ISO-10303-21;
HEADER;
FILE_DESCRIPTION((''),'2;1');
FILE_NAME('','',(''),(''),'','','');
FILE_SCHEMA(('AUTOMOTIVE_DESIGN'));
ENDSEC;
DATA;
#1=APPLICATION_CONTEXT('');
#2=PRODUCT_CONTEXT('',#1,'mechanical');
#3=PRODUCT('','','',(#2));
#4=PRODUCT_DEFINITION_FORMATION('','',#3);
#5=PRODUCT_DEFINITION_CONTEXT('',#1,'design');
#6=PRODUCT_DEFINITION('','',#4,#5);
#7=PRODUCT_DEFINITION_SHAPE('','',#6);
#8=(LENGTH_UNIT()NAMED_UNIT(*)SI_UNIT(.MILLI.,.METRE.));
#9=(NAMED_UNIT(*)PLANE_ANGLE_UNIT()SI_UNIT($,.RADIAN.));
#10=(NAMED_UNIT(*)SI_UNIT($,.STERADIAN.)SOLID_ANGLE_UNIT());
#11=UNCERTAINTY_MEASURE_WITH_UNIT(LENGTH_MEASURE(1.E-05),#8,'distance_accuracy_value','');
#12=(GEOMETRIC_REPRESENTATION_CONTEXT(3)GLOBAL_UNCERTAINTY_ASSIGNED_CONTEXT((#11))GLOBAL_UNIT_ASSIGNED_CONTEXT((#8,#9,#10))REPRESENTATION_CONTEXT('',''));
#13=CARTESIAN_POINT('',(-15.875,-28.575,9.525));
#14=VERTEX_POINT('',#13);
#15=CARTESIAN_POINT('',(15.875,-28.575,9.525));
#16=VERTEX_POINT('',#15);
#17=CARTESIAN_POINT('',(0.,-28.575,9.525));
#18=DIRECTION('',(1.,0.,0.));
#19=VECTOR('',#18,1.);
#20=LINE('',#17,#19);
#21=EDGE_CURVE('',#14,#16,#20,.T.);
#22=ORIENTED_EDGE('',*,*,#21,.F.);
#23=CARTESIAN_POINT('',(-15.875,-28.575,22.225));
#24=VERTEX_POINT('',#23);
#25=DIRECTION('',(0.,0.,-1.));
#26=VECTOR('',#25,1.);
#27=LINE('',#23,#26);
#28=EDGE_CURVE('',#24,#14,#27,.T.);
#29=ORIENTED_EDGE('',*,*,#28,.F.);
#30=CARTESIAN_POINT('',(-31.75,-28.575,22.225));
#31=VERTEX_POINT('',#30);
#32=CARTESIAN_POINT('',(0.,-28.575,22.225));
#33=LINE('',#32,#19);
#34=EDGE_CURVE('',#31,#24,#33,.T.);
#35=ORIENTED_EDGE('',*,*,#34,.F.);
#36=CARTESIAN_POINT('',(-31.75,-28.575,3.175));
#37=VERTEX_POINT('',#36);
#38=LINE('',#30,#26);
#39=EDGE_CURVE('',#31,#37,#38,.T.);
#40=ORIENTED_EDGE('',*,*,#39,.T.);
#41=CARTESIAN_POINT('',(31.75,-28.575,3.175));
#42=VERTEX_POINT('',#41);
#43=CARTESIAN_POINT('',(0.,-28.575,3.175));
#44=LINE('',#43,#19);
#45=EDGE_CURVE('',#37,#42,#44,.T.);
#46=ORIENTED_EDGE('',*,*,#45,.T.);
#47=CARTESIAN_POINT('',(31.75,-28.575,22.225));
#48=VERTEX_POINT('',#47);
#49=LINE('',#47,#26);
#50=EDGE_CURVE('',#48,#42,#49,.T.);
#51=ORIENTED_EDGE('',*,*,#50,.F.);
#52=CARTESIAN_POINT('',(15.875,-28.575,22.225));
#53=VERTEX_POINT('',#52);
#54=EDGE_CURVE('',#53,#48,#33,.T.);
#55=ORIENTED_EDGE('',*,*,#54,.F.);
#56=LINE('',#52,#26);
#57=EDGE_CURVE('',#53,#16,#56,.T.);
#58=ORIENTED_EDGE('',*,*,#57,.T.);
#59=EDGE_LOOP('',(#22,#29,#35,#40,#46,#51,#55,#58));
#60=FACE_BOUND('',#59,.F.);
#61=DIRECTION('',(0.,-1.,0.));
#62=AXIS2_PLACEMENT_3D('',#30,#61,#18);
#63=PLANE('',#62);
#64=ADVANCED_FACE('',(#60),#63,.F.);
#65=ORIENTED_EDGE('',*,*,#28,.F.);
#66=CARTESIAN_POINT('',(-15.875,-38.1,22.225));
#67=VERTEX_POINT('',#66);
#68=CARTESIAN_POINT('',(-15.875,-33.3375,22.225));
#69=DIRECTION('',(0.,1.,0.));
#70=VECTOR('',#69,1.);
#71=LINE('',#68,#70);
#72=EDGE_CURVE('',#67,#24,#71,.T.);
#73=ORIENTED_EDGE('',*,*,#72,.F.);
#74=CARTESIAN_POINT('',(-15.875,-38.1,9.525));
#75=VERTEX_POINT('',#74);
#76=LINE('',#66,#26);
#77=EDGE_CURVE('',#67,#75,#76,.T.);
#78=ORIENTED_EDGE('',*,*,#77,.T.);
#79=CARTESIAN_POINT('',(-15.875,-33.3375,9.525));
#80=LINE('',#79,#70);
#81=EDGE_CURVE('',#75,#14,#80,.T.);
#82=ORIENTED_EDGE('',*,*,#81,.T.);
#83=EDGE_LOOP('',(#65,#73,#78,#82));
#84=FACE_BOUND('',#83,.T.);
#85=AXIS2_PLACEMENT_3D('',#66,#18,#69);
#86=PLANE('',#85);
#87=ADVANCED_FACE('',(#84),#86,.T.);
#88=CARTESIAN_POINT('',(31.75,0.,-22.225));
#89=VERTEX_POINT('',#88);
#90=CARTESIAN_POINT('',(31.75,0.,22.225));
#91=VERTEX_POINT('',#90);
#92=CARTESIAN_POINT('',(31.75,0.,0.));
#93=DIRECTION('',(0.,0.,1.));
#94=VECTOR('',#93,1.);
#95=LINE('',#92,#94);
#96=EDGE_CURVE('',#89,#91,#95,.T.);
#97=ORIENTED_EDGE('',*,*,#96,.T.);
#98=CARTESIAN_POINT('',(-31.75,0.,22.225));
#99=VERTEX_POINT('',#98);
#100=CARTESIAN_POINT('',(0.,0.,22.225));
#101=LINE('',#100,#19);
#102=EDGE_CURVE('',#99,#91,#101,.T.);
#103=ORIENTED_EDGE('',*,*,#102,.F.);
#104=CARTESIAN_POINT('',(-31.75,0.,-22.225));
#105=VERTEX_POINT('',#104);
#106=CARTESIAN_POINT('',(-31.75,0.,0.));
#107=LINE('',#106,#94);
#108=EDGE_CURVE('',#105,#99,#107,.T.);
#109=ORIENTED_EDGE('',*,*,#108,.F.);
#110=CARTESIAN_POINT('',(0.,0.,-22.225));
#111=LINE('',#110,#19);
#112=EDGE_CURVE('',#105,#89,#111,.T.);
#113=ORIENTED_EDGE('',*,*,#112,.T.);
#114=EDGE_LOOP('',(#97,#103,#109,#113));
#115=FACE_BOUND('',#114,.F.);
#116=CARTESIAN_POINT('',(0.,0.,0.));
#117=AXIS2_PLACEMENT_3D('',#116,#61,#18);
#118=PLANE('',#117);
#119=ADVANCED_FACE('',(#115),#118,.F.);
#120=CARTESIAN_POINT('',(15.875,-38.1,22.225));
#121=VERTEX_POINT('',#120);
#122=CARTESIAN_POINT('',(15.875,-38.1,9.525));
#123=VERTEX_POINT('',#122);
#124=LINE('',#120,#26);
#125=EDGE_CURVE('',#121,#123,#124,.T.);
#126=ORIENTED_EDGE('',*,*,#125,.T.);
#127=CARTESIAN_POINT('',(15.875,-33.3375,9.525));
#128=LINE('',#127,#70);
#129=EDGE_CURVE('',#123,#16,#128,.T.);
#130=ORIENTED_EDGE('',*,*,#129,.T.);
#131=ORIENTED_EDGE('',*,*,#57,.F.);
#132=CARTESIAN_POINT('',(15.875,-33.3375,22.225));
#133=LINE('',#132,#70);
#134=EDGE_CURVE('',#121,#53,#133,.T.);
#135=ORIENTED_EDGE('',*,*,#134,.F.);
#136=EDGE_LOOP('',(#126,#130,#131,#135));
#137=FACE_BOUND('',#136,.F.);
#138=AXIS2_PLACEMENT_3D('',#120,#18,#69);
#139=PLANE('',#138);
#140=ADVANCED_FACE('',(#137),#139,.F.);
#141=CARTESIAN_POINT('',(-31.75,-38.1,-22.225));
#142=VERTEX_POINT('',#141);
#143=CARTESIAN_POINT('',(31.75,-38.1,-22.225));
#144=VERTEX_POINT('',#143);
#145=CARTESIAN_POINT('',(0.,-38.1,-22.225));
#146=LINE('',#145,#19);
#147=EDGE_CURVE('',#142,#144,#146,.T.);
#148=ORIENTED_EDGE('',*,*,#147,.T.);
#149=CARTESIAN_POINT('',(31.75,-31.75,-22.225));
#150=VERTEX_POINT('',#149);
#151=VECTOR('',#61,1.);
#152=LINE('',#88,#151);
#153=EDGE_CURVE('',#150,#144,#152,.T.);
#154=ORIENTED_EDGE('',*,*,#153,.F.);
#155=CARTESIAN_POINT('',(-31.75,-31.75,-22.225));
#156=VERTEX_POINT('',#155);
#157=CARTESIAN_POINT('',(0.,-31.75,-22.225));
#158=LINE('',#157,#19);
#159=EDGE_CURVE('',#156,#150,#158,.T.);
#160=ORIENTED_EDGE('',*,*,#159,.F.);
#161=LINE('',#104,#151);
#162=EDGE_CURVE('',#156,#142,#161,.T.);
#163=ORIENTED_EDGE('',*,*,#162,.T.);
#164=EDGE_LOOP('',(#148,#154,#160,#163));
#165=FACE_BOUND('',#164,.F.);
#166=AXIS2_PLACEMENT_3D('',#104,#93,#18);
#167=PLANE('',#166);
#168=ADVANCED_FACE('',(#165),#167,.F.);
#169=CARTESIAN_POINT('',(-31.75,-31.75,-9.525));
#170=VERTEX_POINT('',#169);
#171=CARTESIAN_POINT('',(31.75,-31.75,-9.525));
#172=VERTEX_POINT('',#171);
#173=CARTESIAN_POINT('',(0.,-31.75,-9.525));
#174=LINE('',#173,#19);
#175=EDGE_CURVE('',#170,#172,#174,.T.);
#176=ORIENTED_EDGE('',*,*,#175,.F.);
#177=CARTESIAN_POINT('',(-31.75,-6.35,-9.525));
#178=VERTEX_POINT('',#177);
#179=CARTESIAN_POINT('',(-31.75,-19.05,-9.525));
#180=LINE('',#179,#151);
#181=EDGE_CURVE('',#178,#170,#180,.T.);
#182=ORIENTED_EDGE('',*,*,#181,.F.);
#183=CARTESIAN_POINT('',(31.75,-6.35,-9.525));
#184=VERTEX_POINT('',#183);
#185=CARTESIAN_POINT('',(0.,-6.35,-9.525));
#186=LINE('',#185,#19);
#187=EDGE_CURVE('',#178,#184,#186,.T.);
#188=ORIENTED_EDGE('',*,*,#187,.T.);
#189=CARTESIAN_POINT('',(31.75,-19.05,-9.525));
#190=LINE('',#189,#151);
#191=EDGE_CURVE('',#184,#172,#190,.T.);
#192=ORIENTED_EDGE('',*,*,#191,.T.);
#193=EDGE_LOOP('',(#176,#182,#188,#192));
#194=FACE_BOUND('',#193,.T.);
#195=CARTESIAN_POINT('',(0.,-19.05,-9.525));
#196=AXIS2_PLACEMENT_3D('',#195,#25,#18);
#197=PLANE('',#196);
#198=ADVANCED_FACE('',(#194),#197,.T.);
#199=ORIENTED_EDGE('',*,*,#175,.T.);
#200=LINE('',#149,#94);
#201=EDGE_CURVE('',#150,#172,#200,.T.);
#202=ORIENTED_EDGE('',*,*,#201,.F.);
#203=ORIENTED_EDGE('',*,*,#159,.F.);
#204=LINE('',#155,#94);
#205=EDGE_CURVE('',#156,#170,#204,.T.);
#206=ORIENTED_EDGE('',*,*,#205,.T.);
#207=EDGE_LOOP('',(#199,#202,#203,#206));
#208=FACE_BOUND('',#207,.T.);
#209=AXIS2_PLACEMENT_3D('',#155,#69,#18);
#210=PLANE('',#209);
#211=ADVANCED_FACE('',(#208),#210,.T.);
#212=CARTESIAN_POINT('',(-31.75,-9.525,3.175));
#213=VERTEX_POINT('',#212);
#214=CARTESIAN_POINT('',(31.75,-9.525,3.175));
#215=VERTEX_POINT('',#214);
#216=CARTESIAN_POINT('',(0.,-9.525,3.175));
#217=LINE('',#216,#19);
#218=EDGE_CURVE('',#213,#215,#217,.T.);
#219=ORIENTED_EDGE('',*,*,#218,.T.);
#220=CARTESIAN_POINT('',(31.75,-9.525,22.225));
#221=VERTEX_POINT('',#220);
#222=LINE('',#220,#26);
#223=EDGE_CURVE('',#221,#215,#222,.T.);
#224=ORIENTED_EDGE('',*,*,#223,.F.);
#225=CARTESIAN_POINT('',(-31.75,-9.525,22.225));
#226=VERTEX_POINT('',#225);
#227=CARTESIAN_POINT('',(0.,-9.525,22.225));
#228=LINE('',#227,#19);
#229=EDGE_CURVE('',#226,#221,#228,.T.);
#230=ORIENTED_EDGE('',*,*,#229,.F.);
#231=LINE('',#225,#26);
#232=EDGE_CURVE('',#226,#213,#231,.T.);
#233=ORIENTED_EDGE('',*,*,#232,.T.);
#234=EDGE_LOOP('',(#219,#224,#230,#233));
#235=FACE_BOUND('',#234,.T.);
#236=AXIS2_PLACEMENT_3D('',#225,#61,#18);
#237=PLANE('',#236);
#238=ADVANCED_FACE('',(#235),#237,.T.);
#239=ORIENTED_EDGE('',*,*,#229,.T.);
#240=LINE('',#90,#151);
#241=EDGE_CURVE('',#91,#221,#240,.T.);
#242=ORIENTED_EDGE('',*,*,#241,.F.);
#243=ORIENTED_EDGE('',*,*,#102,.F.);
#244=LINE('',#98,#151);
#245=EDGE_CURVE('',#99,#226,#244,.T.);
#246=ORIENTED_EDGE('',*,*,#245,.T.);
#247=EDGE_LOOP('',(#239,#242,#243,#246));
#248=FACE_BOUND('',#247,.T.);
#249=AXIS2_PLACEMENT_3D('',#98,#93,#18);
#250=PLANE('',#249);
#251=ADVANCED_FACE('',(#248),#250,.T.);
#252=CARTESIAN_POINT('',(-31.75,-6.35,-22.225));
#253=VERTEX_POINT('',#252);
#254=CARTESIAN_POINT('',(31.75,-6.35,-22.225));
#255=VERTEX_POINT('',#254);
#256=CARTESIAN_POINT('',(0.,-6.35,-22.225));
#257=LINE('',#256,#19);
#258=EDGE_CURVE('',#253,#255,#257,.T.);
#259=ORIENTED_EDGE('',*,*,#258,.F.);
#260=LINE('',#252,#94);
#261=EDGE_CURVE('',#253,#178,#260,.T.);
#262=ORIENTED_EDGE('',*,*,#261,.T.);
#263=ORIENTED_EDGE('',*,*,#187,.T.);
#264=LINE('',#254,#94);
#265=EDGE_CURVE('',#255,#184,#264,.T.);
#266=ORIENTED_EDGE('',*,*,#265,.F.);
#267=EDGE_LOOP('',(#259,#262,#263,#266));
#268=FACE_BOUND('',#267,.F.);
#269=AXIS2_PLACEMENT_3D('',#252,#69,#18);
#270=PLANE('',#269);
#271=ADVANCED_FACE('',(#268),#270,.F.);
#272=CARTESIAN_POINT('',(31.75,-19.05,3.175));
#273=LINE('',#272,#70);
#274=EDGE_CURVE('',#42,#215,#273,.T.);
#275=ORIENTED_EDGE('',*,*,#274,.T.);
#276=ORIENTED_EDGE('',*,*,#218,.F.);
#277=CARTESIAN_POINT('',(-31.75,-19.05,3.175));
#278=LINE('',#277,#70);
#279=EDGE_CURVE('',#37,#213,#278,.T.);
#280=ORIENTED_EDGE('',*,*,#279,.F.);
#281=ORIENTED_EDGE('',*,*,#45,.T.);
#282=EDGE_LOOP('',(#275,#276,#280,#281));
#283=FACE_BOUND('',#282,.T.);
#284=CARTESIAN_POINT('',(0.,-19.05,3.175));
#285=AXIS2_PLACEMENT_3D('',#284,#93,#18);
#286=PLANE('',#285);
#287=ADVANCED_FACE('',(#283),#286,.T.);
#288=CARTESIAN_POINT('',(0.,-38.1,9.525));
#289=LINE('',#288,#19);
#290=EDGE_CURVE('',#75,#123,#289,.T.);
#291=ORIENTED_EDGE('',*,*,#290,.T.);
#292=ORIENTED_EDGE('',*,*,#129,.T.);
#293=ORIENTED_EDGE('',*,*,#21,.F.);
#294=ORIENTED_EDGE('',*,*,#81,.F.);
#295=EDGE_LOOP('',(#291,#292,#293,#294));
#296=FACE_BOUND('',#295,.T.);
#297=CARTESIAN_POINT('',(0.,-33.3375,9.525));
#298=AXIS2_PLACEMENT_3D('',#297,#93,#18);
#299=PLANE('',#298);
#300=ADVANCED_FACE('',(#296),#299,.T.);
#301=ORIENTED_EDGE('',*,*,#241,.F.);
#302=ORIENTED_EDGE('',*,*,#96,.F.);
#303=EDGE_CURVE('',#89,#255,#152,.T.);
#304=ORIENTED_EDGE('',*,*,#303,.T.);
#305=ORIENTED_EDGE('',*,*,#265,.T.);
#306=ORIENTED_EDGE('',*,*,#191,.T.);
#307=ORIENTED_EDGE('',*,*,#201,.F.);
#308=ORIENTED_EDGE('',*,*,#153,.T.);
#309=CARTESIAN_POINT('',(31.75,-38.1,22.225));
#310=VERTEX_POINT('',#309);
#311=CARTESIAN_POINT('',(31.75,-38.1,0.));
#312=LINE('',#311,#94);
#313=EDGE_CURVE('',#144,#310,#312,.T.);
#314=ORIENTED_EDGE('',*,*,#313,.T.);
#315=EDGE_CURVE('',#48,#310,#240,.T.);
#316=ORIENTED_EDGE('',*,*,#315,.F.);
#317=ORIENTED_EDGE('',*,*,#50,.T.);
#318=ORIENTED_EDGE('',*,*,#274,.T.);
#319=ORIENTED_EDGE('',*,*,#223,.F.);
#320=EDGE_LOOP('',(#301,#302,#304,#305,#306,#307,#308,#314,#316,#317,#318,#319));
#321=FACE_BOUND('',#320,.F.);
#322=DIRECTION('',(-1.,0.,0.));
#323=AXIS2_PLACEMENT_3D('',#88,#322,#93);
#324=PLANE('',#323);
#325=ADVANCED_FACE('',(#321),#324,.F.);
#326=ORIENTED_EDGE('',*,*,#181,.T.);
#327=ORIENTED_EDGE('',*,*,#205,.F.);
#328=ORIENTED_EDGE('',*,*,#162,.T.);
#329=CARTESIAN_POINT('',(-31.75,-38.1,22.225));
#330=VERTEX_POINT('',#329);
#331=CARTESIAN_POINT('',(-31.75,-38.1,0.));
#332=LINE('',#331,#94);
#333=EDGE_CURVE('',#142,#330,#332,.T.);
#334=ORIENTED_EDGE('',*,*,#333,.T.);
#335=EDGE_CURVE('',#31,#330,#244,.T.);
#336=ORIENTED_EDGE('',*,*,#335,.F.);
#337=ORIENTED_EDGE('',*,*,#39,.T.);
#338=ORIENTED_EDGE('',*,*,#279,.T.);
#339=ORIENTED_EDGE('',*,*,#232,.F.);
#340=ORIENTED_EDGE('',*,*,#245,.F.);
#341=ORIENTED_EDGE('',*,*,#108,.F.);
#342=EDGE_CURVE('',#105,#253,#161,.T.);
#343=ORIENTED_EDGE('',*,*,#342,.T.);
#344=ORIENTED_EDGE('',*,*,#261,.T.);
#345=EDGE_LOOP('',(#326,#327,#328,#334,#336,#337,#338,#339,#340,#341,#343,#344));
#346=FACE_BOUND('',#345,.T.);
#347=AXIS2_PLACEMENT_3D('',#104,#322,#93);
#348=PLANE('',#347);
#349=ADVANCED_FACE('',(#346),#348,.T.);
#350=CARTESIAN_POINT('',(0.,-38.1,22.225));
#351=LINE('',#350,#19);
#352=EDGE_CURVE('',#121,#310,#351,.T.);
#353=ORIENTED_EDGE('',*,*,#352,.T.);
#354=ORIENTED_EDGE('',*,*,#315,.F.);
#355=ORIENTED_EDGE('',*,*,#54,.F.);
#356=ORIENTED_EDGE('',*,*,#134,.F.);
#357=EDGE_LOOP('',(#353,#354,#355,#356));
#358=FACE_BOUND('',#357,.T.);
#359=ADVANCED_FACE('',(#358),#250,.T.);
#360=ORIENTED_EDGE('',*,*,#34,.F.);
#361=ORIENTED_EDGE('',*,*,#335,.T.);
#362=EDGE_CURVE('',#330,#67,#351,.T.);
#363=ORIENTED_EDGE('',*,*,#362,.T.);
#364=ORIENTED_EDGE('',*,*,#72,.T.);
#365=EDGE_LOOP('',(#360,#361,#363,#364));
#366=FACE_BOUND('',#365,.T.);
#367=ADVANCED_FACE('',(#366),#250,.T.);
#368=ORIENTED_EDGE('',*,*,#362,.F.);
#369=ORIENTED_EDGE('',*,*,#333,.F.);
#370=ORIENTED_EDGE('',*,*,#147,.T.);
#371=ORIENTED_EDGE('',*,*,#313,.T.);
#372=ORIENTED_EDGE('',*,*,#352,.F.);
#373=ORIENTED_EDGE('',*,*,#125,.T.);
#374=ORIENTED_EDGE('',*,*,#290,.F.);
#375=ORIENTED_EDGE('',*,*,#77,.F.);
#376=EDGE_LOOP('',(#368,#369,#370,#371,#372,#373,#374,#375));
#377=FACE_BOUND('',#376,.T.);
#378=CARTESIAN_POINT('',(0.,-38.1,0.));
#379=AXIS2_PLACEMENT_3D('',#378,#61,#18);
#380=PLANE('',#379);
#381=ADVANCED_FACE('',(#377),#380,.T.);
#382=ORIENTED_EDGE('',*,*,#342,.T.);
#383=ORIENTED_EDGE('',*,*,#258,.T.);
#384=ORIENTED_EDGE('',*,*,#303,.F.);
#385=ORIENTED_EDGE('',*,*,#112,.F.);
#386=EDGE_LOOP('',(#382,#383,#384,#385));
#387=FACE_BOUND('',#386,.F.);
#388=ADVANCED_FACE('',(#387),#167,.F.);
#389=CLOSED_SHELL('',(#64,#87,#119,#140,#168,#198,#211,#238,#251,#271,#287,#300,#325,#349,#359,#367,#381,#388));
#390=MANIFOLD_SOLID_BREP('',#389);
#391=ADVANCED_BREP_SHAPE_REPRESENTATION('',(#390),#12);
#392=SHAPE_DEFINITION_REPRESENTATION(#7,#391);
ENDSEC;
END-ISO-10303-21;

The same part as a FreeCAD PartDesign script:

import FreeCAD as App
import Part
import Sketcher

V = App.Vector
Q = App.Units.Quantity


def add_polygon(sketch, points):
    """Adds a closed chain of lines whose ends are joined by coincident constraints."""
    first, n = sketch.GeometryCount, len(points)
    for a, b in zip(points, points[1:] + points[:1]):
        sketch.addGeometry(Part.LineSegment(App.Vector(*a, 0), App.Vector(*b, 0)), False)
    for i in range(n):
        sketch.addConstraint(Sketcher.Constraint("Coincident", first + i, 2, first + (i + 1) % n, 1))

doc = App.newDocument("Part")
body = doc.addObject("PartDesign::Body", "Body")

# Sketch on XZ plane
sketch1 = body.newObject("Sketcher::SketchObject", "Sketch")
sketch1.AttachmentSupport = (doc.getObject("XZ_Plane"), [""])
sketch1.MapMode = "FlatFace"
add_polygon(sketch1, [(-31.75, 22.225), (-31.75, -22.225), (31.75, -22.225), (31.75, 22.225)])  # lines 0-3
sketch1.addConstraint(Sketcher.Constraint("Vertical", 0))
sketch1.addConstraint(Sketcher.Constraint("Horizontal", 1))
sketch1.addConstraint(Sketcher.Constraint("Vertical", 2))
sketch1.addConstraint(Sketcher.Constraint("Horizontal", 3))
sketch1.addConstraint(Sketcher.Constraint("Symmetric", 0, 2, 2, 2, -1, 1))
sketch1.addConstraint(Sketcher.Constraint("DistanceX", 1, 1, 1, 2, Q("2.5 in")))
sketch1.addConstraint(Sketcher.Constraint("DistanceY", 0, 2, 0, 1, Q("1.75 in")))
pad1 = body.newObject("PartDesign::Pad", "Pad")
pad1.Profile = sketch1
pad1.Length = Q("1.5 in")

# Sketch on XY plane
sketch2 = body.newObject("Sketcher::SketchObject", "Sketch001")
sketch2.AttachmentSupport = (doc.getObject("XY_Plane"), [""])
sketch2.MapMode = "FlatFace"
sketch2.AttachmentOffset = App.Placement(V(0, 0, 0.875 * 25.4), App.Rotation())
add_polygon(sketch2, [(-31.75, -9.525), (-31.75, -28.575), (31.75, -28.575), (31.75, -9.525)])  # lines 0-3
sketch2.addConstraint(Sketcher.Constraint("Vertical", 0))
sketch2.addConstraint(Sketcher.Constraint("Horizontal", 1))
sketch2.addConstraint(Sketcher.Constraint("Vertical", 2))
sketch2.addConstraint(Sketcher.Constraint("Horizontal", 3))
sketch2.addConstraint(Sketcher.Constraint("DistanceX", 1, 1, 1, 2, Q("2.5 in")))
sketch2.addConstraint(Sketcher.Constraint("DistanceY", 0, 2, 0, 1, Q("0.75 in")))
sketch2.addConstraint(Sketcher.Constraint("DistanceX", 0, 2, -1, 1, Q("1.25 in")))
sketch2.addConstraint(Sketcher.Constraint("DistanceY", 0, 2, -1, 1, Q("1.125 in")))
pocket1 = body.newObject("PartDesign::Pocket", "Pocket")
pocket1.Profile = sketch2
pocket1.Length = Q("0.75 in")

# Sketch on XY plane
sketch3 = body.newObject("Sketcher::SketchObject", "Sketch002")
sketch3.AttachmentSupport = (doc.getObject("XY_Plane"), [""])
sketch3.MapMode = "FlatFace"
sketch3.AttachmentOffset = App.Placement(V(0, 0, -0.875 * 25.4), App.Rotation())
add_polygon(sketch3, [(-31.75, -31.75), (-31.75, -6.35), (31.75, -6.35), (31.75, -31.75)])  # lines 0-3
sketch3.addConstraint(Sketcher.Constraint("Vertical", 0))
sketch3.addConstraint(Sketcher.Constraint("Horizontal", 1))
sketch3.addConstraint(Sketcher.Constraint("Vertical", 2))
sketch3.addConstraint(Sketcher.Constraint("Horizontal", 3))
sketch3.addConstraint(Sketcher.Constraint("DistanceY", 0, 1, 0, 2, Q("1 in")))
sketch3.addConstraint(Sketcher.Constraint("DistanceX", 1, 1, 1, 2, Q("2.5 in")))
sketch3.addConstraint(Sketcher.Constraint("DistanceX", 0, 2, -1, 1, Q("1.25 in")))
sketch3.addConstraint(Sketcher.Constraint("DistanceY", 0, 2, -1, 1, Q("0.25 in")))
pocket2 = body.newObject("PartDesign::Pocket", "Pocket001")
pocket2.Profile = sketch3
pocket2.Length = Q("0.5 in")
pocket2.Reversed = True

# Sketch on XY plane
sketch4 = body.newObject("Sketcher::SketchObject", "Sketch003")
sketch4.AttachmentSupport = (doc.getObject("XY_Plane"), [""])
sketch4.MapMode = "FlatFace"
sketch4.AttachmentOffset = App.Placement(V(0, 0, 0.875 * 25.4), App.Rotation())
add_polygon(sketch4, [(-15.875, -28.575), (-15.875, -38.1), (15.875, -38.1), (15.875, -28.575)])  # lines 0-3
sketch4.addConstraint(Sketcher.Constraint("Vertical", 0))
sketch4.addConstraint(Sketcher.Constraint("Horizontal", 1))
sketch4.addConstraint(Sketcher.Constraint("Vertical", 2))
sketch4.addConstraint(Sketcher.Constraint("Horizontal", 3))
sketch4.addConstraint(Sketcher.Constraint("DistanceX", 1, 1, 1, 2, Q("1.25 in")))
sketch4.addConstraint(Sketcher.Constraint("DistanceY", 0, 2, -1, 1, Q("1.5 in")))
sketch4.addConstraint(Sketcher.Constraint("DistanceY", 0, 2, 0, 1, Q("0.375 in")))
sketch4.addConstraint(Sketcher.Constraint("DistanceX", 0, 2, -1, 1, Q("0.625 in")))
pocket3 = body.newObject("PartDesign::Pocket", "Pocket002")
pocket3.Profile = sketch4
pocket3.Length = Q("0.5 in")

doc.recompute()
